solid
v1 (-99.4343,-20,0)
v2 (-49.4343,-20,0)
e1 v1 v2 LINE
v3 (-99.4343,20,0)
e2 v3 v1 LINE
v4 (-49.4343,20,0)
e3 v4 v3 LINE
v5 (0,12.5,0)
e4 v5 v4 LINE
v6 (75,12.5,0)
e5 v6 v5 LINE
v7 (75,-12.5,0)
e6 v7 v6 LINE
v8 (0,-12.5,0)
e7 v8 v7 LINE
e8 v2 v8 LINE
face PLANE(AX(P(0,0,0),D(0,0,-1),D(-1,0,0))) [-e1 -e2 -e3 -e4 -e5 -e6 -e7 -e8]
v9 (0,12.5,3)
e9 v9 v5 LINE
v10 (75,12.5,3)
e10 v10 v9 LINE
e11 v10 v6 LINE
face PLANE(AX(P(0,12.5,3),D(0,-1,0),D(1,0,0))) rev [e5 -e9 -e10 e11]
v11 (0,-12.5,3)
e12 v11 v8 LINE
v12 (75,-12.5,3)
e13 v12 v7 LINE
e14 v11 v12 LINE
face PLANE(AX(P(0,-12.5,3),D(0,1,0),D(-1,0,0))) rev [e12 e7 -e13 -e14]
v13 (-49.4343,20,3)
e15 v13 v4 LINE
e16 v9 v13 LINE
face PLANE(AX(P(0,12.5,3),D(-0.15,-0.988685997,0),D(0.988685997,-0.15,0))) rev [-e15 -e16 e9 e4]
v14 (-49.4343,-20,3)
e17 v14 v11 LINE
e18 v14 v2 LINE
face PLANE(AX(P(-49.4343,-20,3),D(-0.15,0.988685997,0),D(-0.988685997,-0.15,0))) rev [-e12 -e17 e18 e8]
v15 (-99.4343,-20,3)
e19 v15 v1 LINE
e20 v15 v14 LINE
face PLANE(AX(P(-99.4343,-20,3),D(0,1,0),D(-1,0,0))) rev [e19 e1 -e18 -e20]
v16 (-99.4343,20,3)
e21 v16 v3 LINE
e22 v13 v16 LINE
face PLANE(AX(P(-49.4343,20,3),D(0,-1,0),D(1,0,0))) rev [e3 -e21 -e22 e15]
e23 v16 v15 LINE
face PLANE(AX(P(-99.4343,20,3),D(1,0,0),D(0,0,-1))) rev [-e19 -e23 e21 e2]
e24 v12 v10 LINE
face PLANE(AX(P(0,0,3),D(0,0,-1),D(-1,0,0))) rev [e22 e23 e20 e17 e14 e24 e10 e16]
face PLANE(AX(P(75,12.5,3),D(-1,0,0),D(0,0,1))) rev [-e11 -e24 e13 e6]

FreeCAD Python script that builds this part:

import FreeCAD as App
import Part
import Sketcher
from FreeCAD import Vector
Q = App.Units.Quantity


def add_polygon(sketch, points):
    """Adds a closed chain of lines whose ends are joined by coincident constraints."""
    first, n = sketch.GeometryCount, len(points)
    for a, b in zip(points, points[1:] + points[:1]):
        sketch.addGeometry(Part.LineSegment(App.Vector(*a, 0), App.Vector(*b, 0)), False)
    for i in range(n):
        sketch.addConstraint(Sketcher.Constraint("Coincident", first + i, 2, first + (i + 1) % n, 1))

doc = App.newDocument("Part")
body = doc.addObject("PartDesign::Body", "Body")

sketch1 = body.newObject("Sketcher::SketchObject", "Sketch")
sketch1.AttachmentSupport = (doc.getObject("XY_Plane"), [""])
sketch1.MapMode = "FlatFace"
add_polygon(sketch1, [(0, 12.5), (-49.4343, 20), (-99.4343, 20), (-99.4343, -20), (-49.4343, -20), (0, -12.5), (75, -12.5), (75, 12.5)])
sketch1.addConstraint([
    Sketcher.Constraint("Horizontal", 1),
    Sketcher.Constraint("Vertical", 2),
    Sketcher.Constraint("Horizontal", 3),
    Sketcher.Constraint("Horizontal", 5),
    Sketcher.Constraint("Vertical", 6),
    Sketcher.Constraint("Horizontal", 7),
    Sketcher.Constraint("Symmetric", 4, 2, 7, 2, -1, 1),
    Sketcher.Constraint("Symmetric", 0, 2, 3, 2, -1),
    Sketcher.Constraint("PointOnObject", 4, 2, -2),
    Sketcher.Constraint("DistanceX", 1, 2, 1, 1, Q("50 mm")),
    Sketcher.Constraint("DistanceX", 5, 1, 5, 2, Q("75 mm")),
    Sketcher.Constraint("DistanceY", 2, 2, 2, 1, Q("40 mm")),
    Sketcher.Constraint("DistanceY", 6, 1, 6, 2, Q("25 mm")),
    Sketcher.Constraint("Distance", 0, Q("50 mm")),
])
pad1 = body.newObject("PartDesign::Pad", "Pad")
pad1.Profile = sketch1
pad1.Length = 3

doc.recompute()
